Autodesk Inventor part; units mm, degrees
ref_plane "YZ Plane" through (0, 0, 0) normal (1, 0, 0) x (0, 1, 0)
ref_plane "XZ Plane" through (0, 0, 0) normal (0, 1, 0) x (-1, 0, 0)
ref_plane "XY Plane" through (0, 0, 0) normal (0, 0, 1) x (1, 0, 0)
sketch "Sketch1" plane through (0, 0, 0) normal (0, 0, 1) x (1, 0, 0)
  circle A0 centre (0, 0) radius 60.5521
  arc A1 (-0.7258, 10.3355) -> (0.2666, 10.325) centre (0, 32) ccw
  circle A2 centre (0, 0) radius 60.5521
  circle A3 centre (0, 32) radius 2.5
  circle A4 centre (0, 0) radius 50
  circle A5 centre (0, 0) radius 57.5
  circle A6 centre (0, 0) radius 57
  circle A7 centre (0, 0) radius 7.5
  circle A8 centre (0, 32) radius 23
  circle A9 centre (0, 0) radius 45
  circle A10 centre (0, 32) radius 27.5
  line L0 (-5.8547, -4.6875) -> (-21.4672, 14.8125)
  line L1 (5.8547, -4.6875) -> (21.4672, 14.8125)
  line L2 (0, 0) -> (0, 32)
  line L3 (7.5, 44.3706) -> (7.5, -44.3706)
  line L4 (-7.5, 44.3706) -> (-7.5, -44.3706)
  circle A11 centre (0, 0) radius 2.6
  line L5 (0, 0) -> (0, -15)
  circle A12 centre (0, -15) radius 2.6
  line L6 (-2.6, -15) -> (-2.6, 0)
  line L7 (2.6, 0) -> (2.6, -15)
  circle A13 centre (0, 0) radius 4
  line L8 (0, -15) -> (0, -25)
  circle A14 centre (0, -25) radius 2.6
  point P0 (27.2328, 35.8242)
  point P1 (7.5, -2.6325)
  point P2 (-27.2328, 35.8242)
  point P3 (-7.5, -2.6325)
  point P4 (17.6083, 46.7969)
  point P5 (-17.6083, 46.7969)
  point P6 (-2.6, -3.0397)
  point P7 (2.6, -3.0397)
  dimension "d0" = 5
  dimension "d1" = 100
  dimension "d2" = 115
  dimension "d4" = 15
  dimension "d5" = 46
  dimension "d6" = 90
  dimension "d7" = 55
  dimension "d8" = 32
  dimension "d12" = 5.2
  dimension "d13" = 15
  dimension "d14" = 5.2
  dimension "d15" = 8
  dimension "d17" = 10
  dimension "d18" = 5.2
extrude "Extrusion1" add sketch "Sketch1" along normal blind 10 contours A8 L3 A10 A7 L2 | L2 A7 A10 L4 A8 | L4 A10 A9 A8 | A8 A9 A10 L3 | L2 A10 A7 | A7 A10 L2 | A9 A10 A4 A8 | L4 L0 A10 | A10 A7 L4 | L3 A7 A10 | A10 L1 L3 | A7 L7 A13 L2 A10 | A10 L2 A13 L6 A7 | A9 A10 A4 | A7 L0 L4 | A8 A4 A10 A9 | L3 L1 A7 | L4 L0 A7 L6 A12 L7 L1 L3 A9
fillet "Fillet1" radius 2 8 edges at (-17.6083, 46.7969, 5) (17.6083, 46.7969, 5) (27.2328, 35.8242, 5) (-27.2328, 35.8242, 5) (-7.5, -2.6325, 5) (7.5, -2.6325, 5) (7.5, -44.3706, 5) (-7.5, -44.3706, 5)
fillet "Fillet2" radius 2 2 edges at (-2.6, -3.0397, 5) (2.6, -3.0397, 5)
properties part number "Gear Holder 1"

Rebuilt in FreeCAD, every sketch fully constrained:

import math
import FreeCAD as App
import Part
import Sketcher
Q = App.Units.Quantity


def edges_at(feature, points):
    """Names of the edges that pass closest to the given points."""
    edges = feature.Shape.Edges
    near = lambda p: min(range(len(edges)), key=lambda i: edges[i].distToShape(Part.Vertex(*p))[0])
    return sorted({f"Edge{near(p) + 1}" for p in points})

doc = App.newDocument("Part")
body = doc.addObject("PartDesign::Body", "Body")

# Sketch on XY plane
sketch1 = doc.addObject("Sketcher::SketchObject", "Sketch")
body.addObject(sketch1)
sketch1.AttachmentSupport = (doc.XY_Plane, [""])
sketch1.MapMode = "FlatFace"
sketch1.addGeometry([
    Part.ArcOfCircle(Part.Circle(App.Vector(0, 0, 0), App.Vector(0, 0, 1), 50), math.radians(111), math.radians(429)),  # 0
    Part.ArcOfCircle(Part.Circle(App.Vector(0, 32, 0), App.Vector(0, 0, 1), 23), math.radians(140), math.radians(400)),  # 1
    Part.ArcOfCircle(Part.Circle(App.Vector(0, 0, 0), App.Vector(0, 0, 1), 45), math.radians(-80), math.radians(53)),  # 2
    Part.LineSegment(App.Vector(7.5, -44.4, 0), App.Vector(7.5, -2.6, 0)),  # 3
    Part.LineSegment(App.Vector(7.5, -2.6, 0), App.Vector(21.5, 14.8, 0)),  # 4
    Part.ArcOfCircle(Part.Circle(App.Vector(0, 32, 0), App.Vector(0, 0, 1), 27.5), math.radians(-39), math.radians(8)),  # 5
    Part.LineSegment(App.Vector(2.6, -3, 0), App.Vector(2.6, -15, 0)),  # 6
    Part.ArcOfCircle(Part.Circle(App.Vector(0, -15, 0), App.Vector(0, 0, 1), 2.6), math.radians(-90), math.radians(0)),  # 7
    Part.ArcOfCircle(Part.Circle(App.Vector(0, -15, 0), App.Vector(0, 0, 1), 2.6), math.radians(180), math.radians(270)),  # 8
    Part.LineSegment(App.Vector(-2.6, -15, 0), App.Vector(-2.6, -3, 0)),  # 9
    Part.ArcOfCircle(Part.Circle(App.Vector(0, 0, 0), App.Vector(0, 0, 1), 4), math.radians(-49), math.radians(229)),  # 10
    Part.ArcOfCircle(Part.Circle(App.Vector(0, 32, 0), App.Vector(0, 0, 1), 27.5), math.radians(172), math.radians(219)),  # 11
    Part.LineSegment(App.Vector(-21.5, 14.8, 0), App.Vector(-7.5, -2.6, 0)),  # 12
    Part.LineSegment(App.Vector(-7.5, -2.6, 0), App.Vector(-7.5, -44.4, 0)),  # 13
    Part.ArcOfCircle(Part.Circle(App.Vector(0, 0, 0), App.Vector(0, 0, 1), 45), math.radians(127), math.radians(260)),  # 14
    Part.Circle(App.Vector(0, -25, 0), App.Vector(0, 0, 1), 2.6),  # 15
], False)
sketch1.addConstraint([
    Sketcher.Constraint("Coincident", 0, 1, 1, 1),
    Sketcher.Constraint("Coincident", 1, 2, 0, 2),
    Sketcher.Constraint("Coincident", 2, 1, 3, 1),
    Sketcher.Constraint("Coincident", 3, 2, 4, 1),
    Sketcher.Constraint("Tangent", 4, 2, 5, 1),
    Sketcher.Constraint("Coincident", 5, 2, 2, 2),
    Sketcher.Constraint("Tangent", 6, 2, 7, 2),
    Sketcher.Constraint("Tangent", 7, 1, 8, 2),
    Sketcher.Constraint("Tangent", 8, 1, 9, 1),
    Sketcher.Constraint("Coincident", 9, 2, 10, 2),
    Sketcher.Constraint("Coincident", 10, 1, 6, 1),
    Sketcher.Constraint("Tangent", 11, 2, 12, 1),
    Sketcher.Constraint("Coincident", 12, 2, 13, 1),
    Sketcher.Constraint("Coincident", 13, 2, 14, 2),
    Sketcher.Constraint("Coincident", 14, 1, 11, 1),
    Sketcher.Constraint("Vertical", 3),
    Sketcher.Constraint("Vertical", 6),
    Sketcher.Constraint("Vertical", 9),
    Sketcher.Constraint("Vertical", 13),
    Sketcher.Constraint("Coincident", 0, 3, -1, 1),
    Sketcher.Constraint("Coincident", 2, 3, -1, 1),
    Sketcher.Constraint("Coincident", 10, 3, -1, 1),
    Sketcher.Constraint("Coincident", 14, 3, -1, 1),
    Sketcher.Constraint("Coincident", 5, 3, 1, 3),
    Sketcher.Constraint("Coincident", 11, 3, 1, 3),
    Sketcher.Constraint("Equal", 7, 8),
    Sketcher.Constraint("Equal", 5, 11),
    Sketcher.Constraint("Equal", 2, 14),
    Sketcher.Constraint("Equal", 8, 15),
    Sketcher.Constraint("Symmetric", 4, 2, 11, 2, -2),
    Sketcher.Constraint("PointOnObject", 7, 3, -2),
    Sketcher.Constraint("PointOnObject", 15, 3, -2),
    Sketcher.Constraint("PointOnObject", 7, 1, -2),
    Sketcher.Constraint("Horizontal", 3, 2, 12, 2),
    Sketcher.Constraint("Radius", 0, Q("50 mm")),
    Sketcher.Constraint("Radius", 1, Q("23 mm")),
    Sketcher.Constraint("Radius", 2, Q("45 mm")),
    Sketcher.Constraint("Radius", 10, Q("4 mm")),
    Sketcher.Constraint("Diameter", 15, Q("5.2 mm")),
    Sketcher.Constraint("Radius", 5, Q("27.5 mm")),
    Sketcher.Constraint("DistanceY", -1, 1, 1, 3, Q("32 mm")),
    Sketcher.Constraint("DistanceY", 7, 3, -1, 1, Q("15 mm")),
    Sketcher.Constraint("DistanceY", 15, 3, 7, 3, Q("10 mm")),
    Sketcher.Constraint("DistanceX", 13, 2, 2, 1, Q("15 mm")),
    Sketcher.Constraint("DistanceY", 3, 1, 3, 2, Q("41.738 mm")),
])
pad1 = doc.addObject("PartDesign::Pad", "Pad")
body.addObject(pad1)
pad1.Profile = sketch1
pad1.Length = 10
doc.recompute()

fillet = doc.addObject("PartDesign::Fillet", "Fillet")
body.addObject(fillet)
fillet.Base = (pad1, edges_at(pad1, [
    (-17.608, 46.797, 5),
    (17.608, 46.797, 5),
    (27.233, 35.824, 5),
    (-27.233, 35.824, 5),
    (-7.5, -2.632, 5),
    (7.5, -2.632, 5),
    (7.5, -44.371, 5),
    (-7.5, -44.371, 5),
]))
fillet.Radius = 2
doc.recompute()

fillet2 = doc.addObject("PartDesign::Fillet", "Fillet001")
body.addObject(fillet2)
fillet2.Base = (fillet, edges_at(fillet, [(-2.6, -3.04, 5), (2.6, -3.04, 5)]))
fillet2.Radius = 2

doc.recompute()
